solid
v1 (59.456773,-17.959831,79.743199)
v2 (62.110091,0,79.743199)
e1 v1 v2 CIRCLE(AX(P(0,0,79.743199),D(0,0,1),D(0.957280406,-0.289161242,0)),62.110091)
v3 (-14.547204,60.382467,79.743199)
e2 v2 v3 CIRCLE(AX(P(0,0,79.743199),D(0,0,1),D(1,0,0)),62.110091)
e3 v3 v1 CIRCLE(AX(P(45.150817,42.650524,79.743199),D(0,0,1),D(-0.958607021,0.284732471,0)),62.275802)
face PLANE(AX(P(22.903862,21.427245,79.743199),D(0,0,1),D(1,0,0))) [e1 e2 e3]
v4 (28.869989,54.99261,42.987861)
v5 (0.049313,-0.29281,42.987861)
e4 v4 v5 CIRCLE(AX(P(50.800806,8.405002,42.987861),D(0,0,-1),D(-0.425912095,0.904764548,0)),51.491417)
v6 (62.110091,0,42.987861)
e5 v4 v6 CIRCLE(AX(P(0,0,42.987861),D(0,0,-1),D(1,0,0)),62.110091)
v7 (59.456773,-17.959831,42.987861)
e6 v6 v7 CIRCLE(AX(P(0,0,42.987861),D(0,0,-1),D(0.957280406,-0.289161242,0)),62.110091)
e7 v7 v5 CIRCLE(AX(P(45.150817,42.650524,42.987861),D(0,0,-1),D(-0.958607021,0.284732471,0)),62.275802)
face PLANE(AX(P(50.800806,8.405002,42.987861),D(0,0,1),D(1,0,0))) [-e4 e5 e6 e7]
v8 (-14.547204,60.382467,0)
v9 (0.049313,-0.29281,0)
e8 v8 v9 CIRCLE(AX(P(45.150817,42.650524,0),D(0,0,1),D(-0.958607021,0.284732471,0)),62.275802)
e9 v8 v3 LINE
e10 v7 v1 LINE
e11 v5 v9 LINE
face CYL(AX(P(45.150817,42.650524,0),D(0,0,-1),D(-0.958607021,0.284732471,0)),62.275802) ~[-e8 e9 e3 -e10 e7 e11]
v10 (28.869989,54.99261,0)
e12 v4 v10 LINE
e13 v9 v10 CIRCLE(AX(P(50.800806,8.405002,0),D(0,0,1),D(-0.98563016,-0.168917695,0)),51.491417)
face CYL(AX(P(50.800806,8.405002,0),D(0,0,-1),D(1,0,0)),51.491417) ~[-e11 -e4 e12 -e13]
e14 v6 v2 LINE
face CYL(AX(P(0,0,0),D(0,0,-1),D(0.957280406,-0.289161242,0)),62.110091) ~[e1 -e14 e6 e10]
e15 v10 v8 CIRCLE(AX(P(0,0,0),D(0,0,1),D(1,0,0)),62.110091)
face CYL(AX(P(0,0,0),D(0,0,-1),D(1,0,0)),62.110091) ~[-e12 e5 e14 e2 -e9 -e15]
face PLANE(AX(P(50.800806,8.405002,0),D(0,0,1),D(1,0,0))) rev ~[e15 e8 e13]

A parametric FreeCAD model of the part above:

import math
import FreeCAD as App
import Part
import Sketcher

doc = App.newDocument("Part")
body = doc.addObject("PartDesign::Body", "Body")

# Sketch on XY plane
sketch1 = body.newObject("Sketcher::SketchObject", "Sketch")
sketch1.AttachmentSupport = (doc.getObject("XY_Plane"), [""])
sketch1.MapMode = "FlatFace"
sketch1.addGeometry([
    Part.ArcOfCircle(Part.Circle(App.Vector(0, 0, 0), App.Vector(0, 0, 1), 62), math.radians(-16.81), math.radians(0)),
    Part.ArcOfCircle(Part.Circle(App.Vector(0, 0, 0), App.Vector(0, 0, 1), 62), math.radians(0), math.radians(104)),
    Part.ArcOfCircle(Part.Circle(App.Vector(45, 43, 0), App.Vector(0, 0, 1), 62), math.radians(163), math.radians(283)),
], False)
sketch1.addConstraint([
    Sketcher.Constraint("Tangent", 0, 2, 1, 1),
    Sketcher.Constraint("Coincident", 1, 2, 2, 1),
    Sketcher.Constraint("Coincident", 2, 2, 0, 1),
    Sketcher.Constraint("Coincident", 0, 3, -1, 1),
    Sketcher.Constraint("Equal", 0, 1),
    Sketcher.Constraint("PointOnObject", 0, 2, -1),
    Sketcher.Constraint("Radius", 0, 62.110091),
    Sketcher.Constraint("Radius", 2, 62.275802),
    Sketcher.Constraint("DistanceY", 2, 2, -1, 1, 17.959831),
    Sketcher.Constraint("DistanceX", -1, 1, 2, 3, 45.150817),
])
pad1 = body.newObject("PartDesign::Pad", "Pad")
pad1.Profile = sketch1
pad1.Length = 79.743199

# Sketch on XY plane
sketch2 = body.newObject("Sketcher::SketchObject", "Sketch001")
sketch2.AttachmentSupport = (doc.getObject("XY_Plane"), [""])
sketch2.MapMode = "FlatFace"
sketch2.addGeometry(Part.Circle(App.Vector(51, 8, 0), App.Vector(0, 0, 1), 51), False)
sketch2.addConstraint([
    Sketcher.Constraint("Diameter", 0, 102.982833),
    Sketcher.Constraint("DistanceY", -1, 1, 0, 3, 8.405002),
    Sketcher.Constraint("DistanceX", -1, 1, 0, 3, 50.800806),
])
pad2 = body.newObject("PartDesign::Pad", "Pad001")
pad2.Profile = sketch2
pad2.Length = 42.987861

doc.recompute()
